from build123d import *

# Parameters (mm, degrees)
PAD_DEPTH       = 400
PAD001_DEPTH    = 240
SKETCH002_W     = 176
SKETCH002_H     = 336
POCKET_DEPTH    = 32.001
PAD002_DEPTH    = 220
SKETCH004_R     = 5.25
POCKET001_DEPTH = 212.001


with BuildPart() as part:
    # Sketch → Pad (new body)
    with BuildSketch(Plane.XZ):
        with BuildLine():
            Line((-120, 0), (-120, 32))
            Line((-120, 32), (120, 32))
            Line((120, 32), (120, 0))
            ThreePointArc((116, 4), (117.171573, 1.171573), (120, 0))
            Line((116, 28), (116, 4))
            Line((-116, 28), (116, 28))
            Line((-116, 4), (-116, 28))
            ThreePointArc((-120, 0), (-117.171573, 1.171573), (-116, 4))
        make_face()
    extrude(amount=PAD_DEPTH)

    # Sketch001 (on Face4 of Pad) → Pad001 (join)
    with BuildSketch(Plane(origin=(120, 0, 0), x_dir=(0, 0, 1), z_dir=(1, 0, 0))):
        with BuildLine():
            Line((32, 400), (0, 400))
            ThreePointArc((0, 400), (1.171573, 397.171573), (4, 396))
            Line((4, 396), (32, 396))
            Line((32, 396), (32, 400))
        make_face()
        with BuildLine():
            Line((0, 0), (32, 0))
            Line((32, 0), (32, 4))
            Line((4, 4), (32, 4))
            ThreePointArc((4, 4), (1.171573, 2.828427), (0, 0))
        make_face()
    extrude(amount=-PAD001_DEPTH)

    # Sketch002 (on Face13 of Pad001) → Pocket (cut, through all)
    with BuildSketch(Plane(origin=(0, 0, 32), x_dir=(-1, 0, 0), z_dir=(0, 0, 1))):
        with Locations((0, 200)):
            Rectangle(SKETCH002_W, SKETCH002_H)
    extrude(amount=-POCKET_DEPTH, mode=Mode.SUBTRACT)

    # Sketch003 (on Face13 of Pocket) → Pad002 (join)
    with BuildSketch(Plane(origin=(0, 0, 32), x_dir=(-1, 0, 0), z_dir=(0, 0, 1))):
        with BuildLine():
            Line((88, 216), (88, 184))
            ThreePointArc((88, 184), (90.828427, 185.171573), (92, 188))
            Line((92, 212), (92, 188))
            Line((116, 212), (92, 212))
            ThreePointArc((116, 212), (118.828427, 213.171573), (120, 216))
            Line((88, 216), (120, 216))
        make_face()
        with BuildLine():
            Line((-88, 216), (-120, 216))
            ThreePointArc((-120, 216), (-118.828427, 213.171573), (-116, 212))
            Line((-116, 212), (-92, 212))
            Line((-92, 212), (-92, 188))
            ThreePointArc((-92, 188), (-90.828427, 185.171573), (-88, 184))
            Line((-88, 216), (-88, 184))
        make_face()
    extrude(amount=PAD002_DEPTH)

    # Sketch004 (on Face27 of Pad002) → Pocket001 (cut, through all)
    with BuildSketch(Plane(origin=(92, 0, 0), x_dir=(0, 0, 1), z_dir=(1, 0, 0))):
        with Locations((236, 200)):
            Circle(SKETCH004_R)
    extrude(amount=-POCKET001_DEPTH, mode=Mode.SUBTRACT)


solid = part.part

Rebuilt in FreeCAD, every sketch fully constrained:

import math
import FreeCAD as App
import Part
import Sketcher
from FreeCAD import Vector
Q = App.Units.Quantity


def add_polygon(sketch, points):
    """Adds a closed chain of lines whose ends are joined by coincident constraints."""
    first, n = sketch.GeometryCount, len(points)
    for a, b in zip(points, points[1:] + points[:1]):
        sketch.addGeometry(Part.LineSegment(App.Vector(*a, 0), App.Vector(*b, 0)), False)
    for i in range(n):
        sketch.addConstraint(Sketcher.Constraint("Coincident", first + i, 2, first + (i + 1) % n, 1))

doc = App.newDocument("Part")
body = doc.addObject("PartDesign::Body", "Body")

sketch1 = body.newObject("Sketcher::SketchObject", "Sketch")
sketch1.AttachmentSupport = (doc.getObject("XZ_Plane"), [""])
sketch1.MapMode = "FlatFace"
sketch1.addGeometry([
    Part.LineSegment(Vector(-120, 32, 0), Vector(-120, 0, 0)),
    Part.ArcOfCircle(Part.Circle(Vector(-120, 4, 0), Vector(0, 0, 1), 4), math.radians(-90), math.radians(0)),
    Part.LineSegment(Vector(-116, 4, 0), Vector(-116, 28, 0)),
    Part.LineSegment(Vector(-116, 28, 0), Vector(116, 28, 0)),
    Part.LineSegment(Vector(116, 28, 0), Vector(116, 4, 0)),
    Part.ArcOfCircle(Part.Circle(Vector(120, 4, 0), Vector(0, 0, 1), 4), math.radians(-180), math.radians(-90)),
    Part.LineSegment(Vector(120, 0, 0), Vector(120, 32, 0)),
    Part.LineSegment(Vector(120, 32, 0), Vector(-120, 32, 0)),
], False)
sketch1.addConstraint([
    Sketcher.Constraint("Coincident", 0, 2, 1, 1),
    Sketcher.Constraint("Tangent", 1, 2, 2, 1),
    Sketcher.Constraint("Coincident", 2, 2, 3, 1),
    Sketcher.Constraint("Coincident", 3, 2, 4, 1),
    Sketcher.Constraint("Tangent", 4, 2, 5, 1),
    Sketcher.Constraint("Coincident", 5, 2, 6, 1),
    Sketcher.Constraint("Coincident", 6, 2, 7, 1),
    Sketcher.Constraint("Coincident", 7, 2, 0, 1),
    Sketcher.Constraint("Vertical", 0),
    Sketcher.Constraint("Vertical", 2),
    Sketcher.Constraint("Horizontal", 3),
    Sketcher.Constraint("Vertical", 4),
    Sketcher.Constraint("Vertical", 6),
    Sketcher.Constraint("Horizontal", 7),
    Sketcher.Constraint("Equal", 1, 5),
    Sketcher.Constraint("Symmetric", 0, 2, 5, 2, -1, 1),
    Sketcher.Constraint("Symmetric", 1, 3, 5, 3, -2),
    Sketcher.Constraint("Vertical", 1, 3, 0, 2),
    Sketcher.Constraint("Radius", 1, Q("4 mm")),
    Sketcher.Constraint("DistanceX", 3, 1, 3, 2, Q("232 mm")),
    Sketcher.Constraint("DistanceY", 0, 2, 0, 1, Q("32 mm")),
    Sketcher.Constraint("DistanceY", 2, 1, 2, 2, Q("24 mm")),
])
pad1 = body.newObject("PartDesign::Pad", "Pad")
pad1.Profile = sketch1
pad1.Length = 400

sketch2 = body.newObject("Sketcher::SketchObject", "Sketch001")
sketch2.AttachmentSupport = (doc.getObject("YZ_Plane"), [""])
sketch2.MapMode = "FlatFace"
sketch2.AttachmentOffset = App.Placement(Vector(0, 0, 120), App.Rotation())
sketch2.addGeometry([
    Part.LineSegment(Vector(-400, 32, 0), Vector(-400, 0, 0)),
    Part.ArcOfCircle(Part.Circle(Vector(-400, 4, 0), Vector(0, 0, 1), 4), math.radians(-90), math.radians(0)),
    Part.LineSegment(Vector(-396, 4, 0), Vector(-396, 32, 0)),
    Part.LineSegment(Vector(-396, 32, 0), Vector(-400, 32, 0)),
    Part.LineSegment(Vector(0, 0, 0), Vector(0, 32, 0)),
    Part.LineSegment(Vector(0, 32, 0), Vector(-4, 32, 0)),
    Part.LineSegment(Vector(-4, 32, 0), Vector(-4, 4, 0)),
    Part.ArcOfCircle(Part.Circle(Vector(0, 4, 0), Vector(0, 0, 1), 4), math.radians(-180), math.radians(-90)),
], False)
sketch2.addConstraint([
    Sketcher.Constraint("Coincident", 0, 2, 1, 1),
    Sketcher.Constraint("Tangent", 1, 2, 2, 1),
    Sketcher.Constraint("Coincident", 2, 2, 3, 1),
    Sketcher.Constraint("Coincident", 3, 2, 0, 1),
    Sketcher.Constraint("Coincident", 4, 2, 5, 1),
    Sketcher.Constraint("Coincident", 5, 2, 6, 1),
    Sketcher.Constraint("Tangent", 6, 2, 7, 1),
    Sketcher.Constraint("Coincident", 7, 2, 4, 1),
    Sketcher.Constraint("Vertical", 0),
    Sketcher.Constraint("Vertical", 2),
    Sketcher.Constraint("Horizontal", 3),
    Sketcher.Constraint("Vertical", 4),
    Sketcher.Constraint("Horizontal", 5),
    Sketcher.Constraint("Vertical", 6),
    Sketcher.Constraint("Coincident", 7, 2, -1, 1),
    Sketcher.Constraint("Equal", 1, 7),
    Sketcher.Constraint("PointOnObject", 7, 3, -2),
    Sketcher.Constraint("PointOnObject", 0, 2, -1),
    Sketcher.Constraint("Horizontal", 3, 2, 4, 2),
    Sketcher.Constraint("Vertical", 1, 3, 0, 2),
    Sketcher.Constraint("Radius", 1, Q("4 mm")),
    Sketcher.Constraint("DistanceY", 0, 2, 0, 1, Q("32 mm")),
    Sketcher.Constraint("DistanceX", 1, 3, -1, 1, Q("400 mm")),
])
pad2 = body.newObject("PartDesign::Pad", "Pad001")
pad2.Profile = sketch2
pad2.Length = 240
pad2.Reversed = True

sketch3 = body.newObject("Sketcher::SketchObject", "Sketch002")
sketch3.AttachmentSupport = (doc.getObject("XY_Plane"), [""])
sketch3.MapMode = "FlatFace"
sketch3.AttachmentOffset = App.Placement(Vector(0, 0, 32), App.Rotation())
add_polygon(sketch3, [(88, -368), (88, -32), (-88, -32), (-88, -368)])
sketch3.addConstraint([
    Sketcher.Constraint("Vertical", 0),
    Sketcher.Constraint("Horizontal", 1),
    Sketcher.Constraint("Vertical", 2),
    Sketcher.Constraint("Horizontal", 3),
    Sketcher.Constraint("DistanceX", 1, 2, 1, 1, Q("176 mm")),
    Sketcher.Constraint("DistanceY", 0, 1, 0, 2, Q("336 mm")),
    Sketcher.Constraint("DistanceX", -1, 1, 0, 2, Q("88 mm")),
    Sketcher.Constraint("DistanceY", 0, 2, -1, 1, Q("32 mm")),
])
pocket1 = body.newObject("PartDesign::Pocket", "Pocket")
pocket1.Profile = sketch3
pocket1.Type = "ThroughAll"

sketch4 = body.newObject("Sketcher::SketchObject", "Sketch003")
sketch4.AttachmentSupport = (doc.getObject("XY_Plane"), [""])
sketch4.MapMode = "FlatFace"
sketch4.AttachmentOffset = App.Placement(Vector(0, 0, 32), App.Rotation())
sketch4.addGeometry([
    Part.LineSegment(Vector(-88, -216, 0), Vector(-88, -184, 0)),
    Part.ArcOfCircle(Part.Circle(Vector(-88, -188, 0), Vector(0, 0, 1), 4), math.radians(90), math.radians(180)),
    Part.LineSegment(Vector(-92, -188, 0), Vector(-92, -212, 0)),
    Part.LineSegment(Vector(-92, -212, 0), Vector(-116, -212, 0)),
    Part.ArcOfCircle(Part.Circle(Vector(-116, -216, 0), Vector(0, 0, 1), 4), math.radians(90), math.radians(180)),
    Part.LineSegment(Vector(-120, -216, 0), Vector(-88, -216, 0)),
    Part.LineSegment(Vector(88, -216, 0), Vector(120, -216, 0)),
    Part.ArcOfCircle(Part.Circle(Vector(116, -216, 0), Vector(0, 0, 1), 4), math.radians(0), math.radians(90)),
    Part.LineSegment(Vector(116, -212, 0), Vector(92, -212, 0)),
    Part.LineSegment(Vector(92, -212, 0), Vector(92, -188, 0)),
    Part.ArcOfCircle(Part.Circle(Vector(88, -188, 0), Vector(0, 0, 1), 4), math.radians(0), math.radians(90)),
    Part.LineSegment(Vector(88, -184, 0), Vector(88, -216, 0)),
], False)
sketch4.addConstraint([
    Sketcher.Constraint("Coincident", 0, 2, 1, 1),
    Sketcher.Constraint("Tangent", 1, 2, 2, 1),
    Sketcher.Constraint("Coincident", 2, 2, 3, 1),
    Sketcher.Constraint("Tangent", 3, 2, 4, 1),
    Sketcher.Constraint("Coincident", 4, 2, 5, 1),
    Sketcher.Constraint("Coincident", 5, 2, 0, 1),
    Sketcher.Constraint("Coincident", 6, 2, 7, 1),
    Sketcher.Constraint("Tangent", 7, 2, 8, 1),
    Sketcher.Constraint("Coincident", 8, 2, 9, 1),
    Sketcher.Constraint("Tangent", 9, 2, 10, 1),
    Sketcher.Constraint("Coincident", 10, 2, 11, 1),
    Sketcher.Constraint("Coincident", 11, 2, 6, 1),
    Sketcher.Constraint("Vertical", 0),
    Sketcher.Constraint("Vertical", 2),
    Sketcher.Constraint("Horizontal", 3),
    Sketcher.Constraint("Horizontal", 5),
    Sketcher.Constraint("Horizontal", 6),
    Sketcher.Constraint("Horizontal", 8),
    Sketcher.Constraint("Vertical", 9),
    Sketcher.Constraint("Vertical", 11),
    Sketcher.Constraint("Equal", 1, 4),
    Sketcher.Constraint("Equal", 4, 7),
    Sketcher.Constraint("Equal", 7, 10),
    Sketcher.Constraint("Symmetric", 4, 3, 7, 3, -2),
    Sketcher.Constraint("Symmetric", 1, 3, 10, 3, -2),
    Sketcher.Constraint("Symmetric", 5, 2, 11, 2, -2),
    Sketcher.Constraint("Horizontal", 7, 3, 4, 2),
    Sketcher.Constraint("Vertical", 1, 3, 0, 2),
    Sketcher.Constraint("Equal", 6, 0),
    Sketcher.Constraint("Radius", 1, Q("4 mm")),
    Sketcher.Constraint("DistanceX", 3, 2, 3, 1, Q("24 mm")),
    Sketcher.Constraint("DistanceX", 1, 3, -1, 1, Q("88 mm")),
    Sketcher.Constraint("DistanceY", 1, 3, -1, 1, Q("188 mm")),
])
pad3 = body.newObject("PartDesign::Pad", "Pad002")
pad3.Profile = sketch4
pad3.Length = 220

sketch5 = body.newObject("Sketcher::SketchObject", "Sketch004")
sketch5.AttachmentSupport = (doc.getObject("YZ_Plane"), [""])
sketch5.MapMode = "FlatFace"
sketch5.AttachmentOffset = App.Placement(Vector(0, 0, 92), App.Rotation())
sketch5.addGeometry(Part.Circle(Vector(-200, 236, 0), Vector(0, 0, 1), 5), False)
sketch5.addConstraint([
    Sketcher.Constraint("Diameter", 0, Q("10.5 mm")),
    Sketcher.Constraint("DistanceX", 0, 3, -1, 1, Q("200 mm")),
    Sketcher.Constraint("DistanceY", -1, 1, 0, 3, Q("236 mm")),
])
pocket2 = body.newObject("PartDesign::Pocket", "Pocket001")
pocket2.Profile = sketch5
pocket2.Type = "ThroughAll"

doc.recompute()
